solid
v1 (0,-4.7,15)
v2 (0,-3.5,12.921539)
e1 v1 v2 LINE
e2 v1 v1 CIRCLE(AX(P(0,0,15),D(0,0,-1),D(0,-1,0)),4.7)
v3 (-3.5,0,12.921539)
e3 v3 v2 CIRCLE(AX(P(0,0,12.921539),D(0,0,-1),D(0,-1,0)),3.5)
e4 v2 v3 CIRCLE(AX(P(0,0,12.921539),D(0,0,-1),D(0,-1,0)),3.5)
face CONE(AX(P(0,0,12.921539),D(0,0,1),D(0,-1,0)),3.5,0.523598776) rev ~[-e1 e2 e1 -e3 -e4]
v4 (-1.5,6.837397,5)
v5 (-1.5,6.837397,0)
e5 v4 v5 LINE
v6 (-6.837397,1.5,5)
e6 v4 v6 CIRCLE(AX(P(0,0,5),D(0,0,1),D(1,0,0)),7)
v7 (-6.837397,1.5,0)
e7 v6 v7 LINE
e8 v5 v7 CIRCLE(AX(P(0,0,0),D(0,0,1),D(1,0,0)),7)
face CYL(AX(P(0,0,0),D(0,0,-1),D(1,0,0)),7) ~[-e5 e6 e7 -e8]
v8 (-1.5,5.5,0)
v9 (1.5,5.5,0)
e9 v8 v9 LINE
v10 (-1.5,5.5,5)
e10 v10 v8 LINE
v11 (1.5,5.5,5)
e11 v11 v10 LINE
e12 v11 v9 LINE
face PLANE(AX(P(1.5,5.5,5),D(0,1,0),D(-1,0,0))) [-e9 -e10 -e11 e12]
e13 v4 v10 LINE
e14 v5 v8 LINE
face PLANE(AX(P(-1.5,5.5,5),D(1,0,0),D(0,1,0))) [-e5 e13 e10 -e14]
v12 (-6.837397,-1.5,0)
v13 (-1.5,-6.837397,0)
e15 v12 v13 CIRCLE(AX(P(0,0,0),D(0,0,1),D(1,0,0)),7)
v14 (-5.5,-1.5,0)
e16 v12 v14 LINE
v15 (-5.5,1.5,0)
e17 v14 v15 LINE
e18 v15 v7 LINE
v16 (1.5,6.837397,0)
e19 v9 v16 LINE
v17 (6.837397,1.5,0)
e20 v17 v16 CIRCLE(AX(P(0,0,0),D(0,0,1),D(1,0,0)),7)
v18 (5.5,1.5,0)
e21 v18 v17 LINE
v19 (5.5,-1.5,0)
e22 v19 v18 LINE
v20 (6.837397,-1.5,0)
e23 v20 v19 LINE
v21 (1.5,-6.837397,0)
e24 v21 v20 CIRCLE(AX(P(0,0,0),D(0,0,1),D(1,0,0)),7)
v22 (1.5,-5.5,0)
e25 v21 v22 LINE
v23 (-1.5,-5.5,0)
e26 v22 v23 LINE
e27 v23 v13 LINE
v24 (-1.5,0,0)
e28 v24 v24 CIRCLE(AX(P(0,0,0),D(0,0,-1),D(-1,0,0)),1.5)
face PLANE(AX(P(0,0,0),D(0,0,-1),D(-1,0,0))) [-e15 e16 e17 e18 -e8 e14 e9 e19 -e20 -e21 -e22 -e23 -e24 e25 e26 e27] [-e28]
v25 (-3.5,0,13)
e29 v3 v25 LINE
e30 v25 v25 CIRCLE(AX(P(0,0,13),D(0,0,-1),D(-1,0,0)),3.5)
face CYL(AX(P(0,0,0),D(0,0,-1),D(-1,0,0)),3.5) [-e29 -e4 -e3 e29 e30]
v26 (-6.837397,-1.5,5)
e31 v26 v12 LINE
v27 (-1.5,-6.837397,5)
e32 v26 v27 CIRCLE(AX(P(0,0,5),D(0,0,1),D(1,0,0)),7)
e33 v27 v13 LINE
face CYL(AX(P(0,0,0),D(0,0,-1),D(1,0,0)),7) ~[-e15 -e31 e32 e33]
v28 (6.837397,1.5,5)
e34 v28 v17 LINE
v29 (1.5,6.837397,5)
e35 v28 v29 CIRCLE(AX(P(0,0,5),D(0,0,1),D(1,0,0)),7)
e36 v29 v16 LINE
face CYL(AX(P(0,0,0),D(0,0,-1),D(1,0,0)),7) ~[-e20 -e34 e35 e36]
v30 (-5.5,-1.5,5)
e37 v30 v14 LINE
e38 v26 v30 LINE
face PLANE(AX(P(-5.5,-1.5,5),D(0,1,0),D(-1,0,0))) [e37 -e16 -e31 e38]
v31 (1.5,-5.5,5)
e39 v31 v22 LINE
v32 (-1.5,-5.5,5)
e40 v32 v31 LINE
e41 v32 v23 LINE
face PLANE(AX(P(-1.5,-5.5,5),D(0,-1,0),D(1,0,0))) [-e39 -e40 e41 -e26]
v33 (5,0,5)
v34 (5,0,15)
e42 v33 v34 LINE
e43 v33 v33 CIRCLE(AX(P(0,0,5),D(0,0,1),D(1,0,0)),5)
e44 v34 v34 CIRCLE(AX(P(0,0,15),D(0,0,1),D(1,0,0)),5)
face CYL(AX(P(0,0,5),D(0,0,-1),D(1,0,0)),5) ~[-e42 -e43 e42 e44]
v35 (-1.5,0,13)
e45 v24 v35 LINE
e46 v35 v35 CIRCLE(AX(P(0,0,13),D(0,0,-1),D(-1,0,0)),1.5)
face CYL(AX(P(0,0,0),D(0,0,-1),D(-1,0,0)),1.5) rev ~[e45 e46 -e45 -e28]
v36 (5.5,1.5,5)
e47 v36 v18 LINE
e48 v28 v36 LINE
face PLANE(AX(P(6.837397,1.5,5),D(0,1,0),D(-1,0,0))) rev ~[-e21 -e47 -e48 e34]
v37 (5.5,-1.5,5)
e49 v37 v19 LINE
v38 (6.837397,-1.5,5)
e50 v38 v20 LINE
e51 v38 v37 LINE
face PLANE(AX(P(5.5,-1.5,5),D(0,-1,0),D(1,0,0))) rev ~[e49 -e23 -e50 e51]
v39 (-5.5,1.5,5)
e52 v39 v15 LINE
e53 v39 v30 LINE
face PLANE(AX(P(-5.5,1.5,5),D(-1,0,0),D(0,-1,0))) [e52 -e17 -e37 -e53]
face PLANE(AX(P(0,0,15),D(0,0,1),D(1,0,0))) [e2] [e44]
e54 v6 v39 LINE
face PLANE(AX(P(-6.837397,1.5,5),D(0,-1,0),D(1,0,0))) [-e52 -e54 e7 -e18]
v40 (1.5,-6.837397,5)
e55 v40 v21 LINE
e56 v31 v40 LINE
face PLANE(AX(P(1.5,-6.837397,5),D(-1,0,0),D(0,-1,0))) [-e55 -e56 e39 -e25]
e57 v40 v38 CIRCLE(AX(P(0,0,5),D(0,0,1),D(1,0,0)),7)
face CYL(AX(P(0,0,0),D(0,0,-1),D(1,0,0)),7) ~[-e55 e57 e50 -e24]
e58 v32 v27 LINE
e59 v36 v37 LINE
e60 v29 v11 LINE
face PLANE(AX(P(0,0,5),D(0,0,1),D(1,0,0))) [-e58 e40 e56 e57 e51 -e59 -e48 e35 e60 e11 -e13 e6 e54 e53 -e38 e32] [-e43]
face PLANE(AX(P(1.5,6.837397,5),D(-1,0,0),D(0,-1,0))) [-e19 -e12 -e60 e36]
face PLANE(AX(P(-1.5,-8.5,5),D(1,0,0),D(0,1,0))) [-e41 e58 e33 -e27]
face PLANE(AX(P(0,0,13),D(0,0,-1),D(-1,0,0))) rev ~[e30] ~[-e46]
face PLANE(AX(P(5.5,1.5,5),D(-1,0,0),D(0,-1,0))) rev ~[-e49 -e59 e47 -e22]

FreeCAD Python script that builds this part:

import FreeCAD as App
import Part
import Sketcher

V = App.Vector
Q = App.Units.Quantity


def edges_at(feature, points):
    """Names of the edges that pass closest to the given points."""
    edges = feature.Shape.Edges
    near = lambda p: min(range(len(edges)), key=lambda i: edges[i].distToShape(Part.Vertex(*p))[0])
    return sorted({f"Edge{near(p) + 1}" for p in points})

doc = App.newDocument("Part")
body = doc.addObject("PartDesign::Body", "Body")

# Sketch on XY plane
sketch1 = body.newObject("Sketcher::SketchObject", "Sketch")
sketch1.AttachmentSupport = (doc.getObject("XY_Plane"), [""])
sketch1.MapMode = "FlatFace"
sketch1.addGeometry(Part.Circle(V(0, 0, 0), V(0, 0, 1), 7), False)
sketch1.addConstraint([
    Sketcher.Constraint("Coincident", 0, 3, -1, 1),
    Sketcher.Constraint("Diameter", 0, Q("14 mm")),
])
pad1 = body.newObject("PartDesign::Pad", "Pad")
pad1.Profile = sketch1
pad1.Length = 5

# Sketch on XY plane
sketch2 = body.newObject("Sketcher::SketchObject", "Sketch001")
sketch2.AttachmentSupport = (doc.getObject("XY_Plane"), [""])
sketch2.MapMode = "FlatFace"
sketch2.AttachmentOffset = App.Placement(V(0, 0, 5), App.Rotation())
sketch2.addGeometry(Part.Circle(V(0, 0, 0), V(0, 0, 1), 5), False)
sketch2.addConstraint([
    Sketcher.Constraint("Coincident", 0, 3, -1, 1),
    Sketcher.Constraint("Diameter", 0, Q("10 mm")),
])
pad2 = body.newObject("PartDesign::Pad", "Pad001")
pad2.Profile = sketch2
pad2.Length = 10

# Sketch on XY plane
sketch3 = body.newObject("Sketcher::SketchObject", "Sketch002")
sketch3.AttachmentSupport = (doc.getObject("XY_Plane"), [""])
sketch3.MapMode = "FlatFace"
sketch3.AttachmentOffset = App.Placement(V(0, 0, 15), App.Rotation())
sketch3.addGeometry(Part.Circle(V(0, 0, 0), V(0, 0, 1), 3.5), False)
sketch3.addConstraint([
    Sketcher.Constraint("Coincident", 0, 3, -1, 1),
    Sketcher.Constraint("Diameter", 0, Q("7 mm")),
])
doc.recompute()
hole = body.newObject("PartDesign::Hole", "Hole")
hole.Profile = sketch3
hole.ThreadType = "None"
hole.Diameter = 7
hole.DepthType = "ThroughAll"
doc.recompute()

chamfer = body.newObject("PartDesign::Chamfer", "Chamfer")
chamfer.Base = (hole, edges_at(hole, [(0, 3.5, 15)]))
chamfer.ChamferType = "Distance and Angle"
chamfer.Size = 1.2
chamfer.Angle = 60
chamfer.FlipDirection = True

# Sketch on XY plane
sketch4 = body.newObject("Sketcher::SketchObject", "Sketch003")
sketch4.AttachmentSupport = (doc.getObject("XY_Plane"), [""])
sketch4.MapMode = "FlatFace"
sketch4.addGeometry([
    Part.Circle(V(0, 0, 0), V(0, 0, 1), 3.5),
    Part.Circle(V(0, 0, 0), V(0, 0, 1), 1.5),
], False)
sketch4.addConstraint([
    Sketcher.Constraint("Coincident", 0, 3, -1, 1),
    Sketcher.Constraint("Coincident", 1, 3, -1, 1),
    Sketcher.Constraint("Diameter", 1, Q("3 mm")),
    Sketcher.Constraint("Diameter", 0, Q("7 mm")),
])
pad3 = body.newObject("PartDesign::Pad", "Pad002")
pad3.Profile = sketch4
pad3.Length = 13

# Sketch on XY plane
sketch5 = body.newObject("Sketcher::SketchObject", "Sketch004")
sketch5.AttachmentSupport = (doc.getObject("XY_Plane"), [""])
sketch5.MapMode = "FlatFace"
sketch5.AttachmentOffset = App.Placement(V(0, 0, 5), App.Rotation())
sketch5.addGeometry([
    Part.LineSegment(V(5.5, -1.5, 0), V(8.5, -1.5, 0)),  # 0
    Part.LineSegment(V(8.5, -1.5, 0), V(8.5, 1.5, 0)),  # 1
    Part.LineSegment(V(8.5, 1.5, 0), V(5.5, 1.5, 0)),  # 2
    Part.LineSegment(V(5.5, 1.5, 0), V(5.5, -1.5, 0)),  # 3
    Part.LineSegment(V(1.5, 5.5, 0), V(1.5, 8.5, 0)),  # 4
    Part.LineSegment(V(1.5, 8.5, 0), V(-1.5, 8.5, 0)),  # 5
    Part.LineSegment(V(-1.5, 8.5, 0), V(-1.5, 5.5, 0)),  # 6
    Part.LineSegment(V(-1.5, 5.5, 0), V(1.5, 5.5, 0)),  # 7
    Part.LineSegment(V(1.5, -8.5, 0), V(1.5, -5.5, 0)),  # 8
    Part.LineSegment(V(1.5, -5.5, 0), V(-1.5, -5.5, 0)),  # 9
    Part.LineSegment(V(-1.5, -5.5, 0), V(-1.5, -8.5, 0)),  # 10
    Part.LineSegment(V(-1.5, -8.5, 0), V(1.5, -8.5, 0)),  # 11
    Part.LineSegment(V(-5.5, 1.5, 0), V(-8.5, 1.5, 0)),  # 12
    Part.LineSegment(V(-8.5, 1.5, 0), V(-8.5, -1.5, 0)),  # 13
    Part.LineSegment(V(-8.5, -1.5, 0), V(-5.5, -1.5, 0)),  # 14
    Part.LineSegment(V(-5.5, -1.5, 0), V(-5.5, 1.5, 0)),  # 15
], False)
sketch5.addConstraint([
    Sketcher.Constraint("Coincident", 0, 2, 1, 1),
    Sketcher.Constraint("Coincident", 1, 2, 2, 1),
    Sketcher.Constraint("Coincident", 2, 2, 3, 1),
    Sketcher.Constraint("Coincident", 3, 2, 0, 1),
    Sketcher.Constraint("Coincident", 4, 2, 5, 1),
    Sketcher.Constraint("Coincident", 5, 2, 6, 1),
    Sketcher.Constraint("Coincident", 6, 2, 7, 1),
    Sketcher.Constraint("Coincident", 7, 2, 4, 1),
    Sketcher.Constraint("Coincident", 8, 2, 9, 1),
    Sketcher.Constraint("Coincident", 9, 2, 10, 1),
    Sketcher.Constraint("Coincident", 10, 2, 11, 1),
    Sketcher.Constraint("Coincident", 11, 2, 8, 1),
    Sketcher.Constraint("Coincident", 12, 2, 13, 1),
    Sketcher.Constraint("Coincident", 13, 2, 14, 1),
    Sketcher.Constraint("Coincident", 14, 2, 15, 1),
    Sketcher.Constraint("Coincident", 15, 2, 12, 1),
    Sketcher.Constraint("Horizontal", 0),
    Sketcher.Constraint("Vertical", 1),
    Sketcher.Constraint("Horizontal", 2),
    Sketcher.Constraint("Vertical", 3),
    Sketcher.Constraint("Vertical", 4),
    Sketcher.Constraint("Horizontal", 5),
    Sketcher.Constraint("Vertical", 6),
    Sketcher.Constraint("Horizontal", 7),
    Sketcher.Constraint("Vertical", 8),
    Sketcher.Constraint("Horizontal", 9),
    Sketcher.Constraint("Vertical", 10),
    Sketcher.Constraint("Horizontal", 11),
    Sketcher.Constraint("Horizontal", 12),
    Sketcher.Constraint("Vertical", 13),
    Sketcher.Constraint("Horizontal", 14),
    Sketcher.Constraint("Vertical", 15),
    Sketcher.Constraint("Symmetric", 6, 2, 8, 2, -1, 1),
    Sketcher.Constraint("Symmetric", 4, 2, 10, 2, -1, 1),
    Sketcher.Constraint("Symmetric", 0, 2, 12, 2, -1, 1),
    Sketcher.Constraint("Symmetric", 2, 2, 14, 2, -1, 1),
    Sketcher.Constraint("Horizontal", 2, 2, 12, 2),
    Sketcher.Constraint("Vertical", 7, 2, 8, 2),
    Sketcher.Constraint("Equal", 2, 5),
    Sketcher.Constraint("Equal", 14, 1),
    Sketcher.Constraint("Equal", 3, 4),
    Sketcher.Constraint("DistanceX", 0, 1, 0, 2, Q("3 mm")),
    Sketcher.Constraint("DistanceX", 4, 2, 2, 2, Q("4 mm")),
    Sketcher.Constraint("DistanceY", 2, 2, 4, 2, Q("7 mm")),
])
pocket1 = body.newObject("PartDesign::Pocket", "Pocket")
pocket1.Profile = sketch5
pocket1.Length = 13

doc.recompute()
